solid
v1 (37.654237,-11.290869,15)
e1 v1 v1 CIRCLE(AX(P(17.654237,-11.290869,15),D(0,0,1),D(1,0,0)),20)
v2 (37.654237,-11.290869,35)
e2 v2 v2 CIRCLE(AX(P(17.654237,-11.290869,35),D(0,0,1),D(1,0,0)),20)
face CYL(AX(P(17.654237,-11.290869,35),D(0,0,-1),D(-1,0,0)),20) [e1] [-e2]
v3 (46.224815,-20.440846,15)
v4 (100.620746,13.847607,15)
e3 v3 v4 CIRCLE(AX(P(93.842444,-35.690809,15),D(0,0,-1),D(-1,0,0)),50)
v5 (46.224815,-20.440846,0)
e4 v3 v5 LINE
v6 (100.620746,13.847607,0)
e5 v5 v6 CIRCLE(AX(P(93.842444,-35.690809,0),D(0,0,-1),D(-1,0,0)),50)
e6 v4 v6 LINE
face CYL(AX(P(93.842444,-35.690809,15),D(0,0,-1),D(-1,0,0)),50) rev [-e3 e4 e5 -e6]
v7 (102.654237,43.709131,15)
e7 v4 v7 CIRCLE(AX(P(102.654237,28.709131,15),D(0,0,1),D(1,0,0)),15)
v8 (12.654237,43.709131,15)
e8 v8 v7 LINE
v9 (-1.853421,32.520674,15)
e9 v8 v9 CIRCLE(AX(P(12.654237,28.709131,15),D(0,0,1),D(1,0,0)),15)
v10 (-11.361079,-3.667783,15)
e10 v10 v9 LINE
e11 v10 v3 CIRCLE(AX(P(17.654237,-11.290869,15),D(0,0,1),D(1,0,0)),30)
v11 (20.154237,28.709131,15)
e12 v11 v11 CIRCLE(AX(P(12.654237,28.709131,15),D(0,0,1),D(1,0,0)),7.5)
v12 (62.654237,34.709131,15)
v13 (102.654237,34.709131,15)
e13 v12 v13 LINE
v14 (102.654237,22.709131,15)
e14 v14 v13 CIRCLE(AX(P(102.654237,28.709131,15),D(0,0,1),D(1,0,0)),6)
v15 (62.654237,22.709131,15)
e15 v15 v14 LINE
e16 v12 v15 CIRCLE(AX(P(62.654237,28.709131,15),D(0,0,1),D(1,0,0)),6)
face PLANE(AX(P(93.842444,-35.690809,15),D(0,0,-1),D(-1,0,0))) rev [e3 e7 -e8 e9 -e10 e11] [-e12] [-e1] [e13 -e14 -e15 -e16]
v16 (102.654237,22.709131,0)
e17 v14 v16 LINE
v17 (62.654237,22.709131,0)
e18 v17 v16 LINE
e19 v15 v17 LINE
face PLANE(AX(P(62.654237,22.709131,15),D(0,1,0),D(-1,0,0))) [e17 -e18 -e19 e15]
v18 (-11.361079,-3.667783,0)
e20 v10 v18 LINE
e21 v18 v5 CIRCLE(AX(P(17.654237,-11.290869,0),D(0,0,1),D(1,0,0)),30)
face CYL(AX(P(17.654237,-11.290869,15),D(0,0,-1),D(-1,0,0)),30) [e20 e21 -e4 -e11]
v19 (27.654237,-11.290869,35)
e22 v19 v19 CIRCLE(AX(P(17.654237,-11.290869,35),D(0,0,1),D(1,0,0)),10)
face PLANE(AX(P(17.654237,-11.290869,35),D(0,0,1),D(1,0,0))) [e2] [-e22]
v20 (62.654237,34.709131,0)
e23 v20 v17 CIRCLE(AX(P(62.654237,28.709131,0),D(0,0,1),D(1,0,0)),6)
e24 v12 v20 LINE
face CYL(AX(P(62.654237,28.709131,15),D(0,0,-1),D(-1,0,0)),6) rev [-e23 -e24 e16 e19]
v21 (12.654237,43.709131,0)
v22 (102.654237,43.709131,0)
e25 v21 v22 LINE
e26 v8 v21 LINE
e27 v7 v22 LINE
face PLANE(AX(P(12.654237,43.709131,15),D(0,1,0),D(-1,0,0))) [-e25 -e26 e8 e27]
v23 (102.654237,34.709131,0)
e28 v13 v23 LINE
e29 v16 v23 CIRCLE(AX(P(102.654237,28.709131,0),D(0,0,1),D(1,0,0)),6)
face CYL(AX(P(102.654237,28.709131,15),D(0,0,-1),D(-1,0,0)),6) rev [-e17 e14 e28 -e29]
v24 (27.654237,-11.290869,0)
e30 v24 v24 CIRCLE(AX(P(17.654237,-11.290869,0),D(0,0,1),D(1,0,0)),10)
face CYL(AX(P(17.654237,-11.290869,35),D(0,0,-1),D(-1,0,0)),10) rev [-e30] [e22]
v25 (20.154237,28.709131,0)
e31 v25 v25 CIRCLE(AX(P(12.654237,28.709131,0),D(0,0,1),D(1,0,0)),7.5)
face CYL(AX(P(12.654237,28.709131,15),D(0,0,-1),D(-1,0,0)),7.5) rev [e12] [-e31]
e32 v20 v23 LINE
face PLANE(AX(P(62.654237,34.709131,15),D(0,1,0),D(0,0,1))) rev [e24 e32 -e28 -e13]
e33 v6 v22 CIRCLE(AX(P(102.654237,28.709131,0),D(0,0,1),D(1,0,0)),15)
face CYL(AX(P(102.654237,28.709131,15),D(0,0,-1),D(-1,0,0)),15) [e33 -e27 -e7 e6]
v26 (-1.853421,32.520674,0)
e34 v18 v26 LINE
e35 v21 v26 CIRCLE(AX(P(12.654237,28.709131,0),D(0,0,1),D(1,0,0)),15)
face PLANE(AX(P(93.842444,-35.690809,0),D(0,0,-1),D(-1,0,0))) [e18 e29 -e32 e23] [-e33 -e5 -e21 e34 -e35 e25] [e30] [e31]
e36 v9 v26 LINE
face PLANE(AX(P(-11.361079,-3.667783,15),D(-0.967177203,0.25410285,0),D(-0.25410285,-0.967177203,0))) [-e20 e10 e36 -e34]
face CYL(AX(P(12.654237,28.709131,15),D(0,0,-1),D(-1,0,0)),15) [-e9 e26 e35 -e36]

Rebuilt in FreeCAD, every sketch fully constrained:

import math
import FreeCAD as App
import Part
import Sketcher
from FreeCAD import Vector
Q = App.Units.Quantity

doc = App.newDocument("Part")
body = doc.addObject("PartDesign::Body", "Body")

# Sketch on XY plane
sketch1 = body.newObject("Sketcher::SketchObject", "Sketch")
sketch1.AttachmentSupport = (doc.getObject("XY_Plane"), [""])
sketch1.MapMode = "FlatFace"
sketch1.addGeometry(Part.LineSegment(Vector(-2, 33, 0), Vector(-11, -4, 0)), False)
sketch1.addGeometry(Part.ArcOfCircle(Part.Circle(Vector(18, -11, 0), Vector(0, 0, 1), 30), math.radians(165), math.radians(342)), False)
sketch1.addGeometry(Part.ArcOfCircle(Part.Circle(Vector(94, -36, 0), Vector(0, 0, 1), 50), math.radians(82), math.radians(162)), False)
sketch1.addGeometry(Part.ArcOfCircle(Part.Circle(Vector(103, 29, 0), Vector(0, 0, 1), 15), math.radians(-98), math.radians(90)), False)
sketch1.addGeometry(Part.LineSegment(Vector(103, 44, 0), Vector(13, 44, 0)), False)
sketch1.addGeometry(Part.ArcOfCircle(Part.Circle(Vector(13, 29, 0), Vector(0, 0, 1), 15), math.radians(90), math.radians(165)), False)
sketch1.addGeometry(Part.Circle(Vector(18, -11, 0), Vector(0, 0, 1), 20), False)
sketch1.addGeometry(Part.LineSegment(Vector(63, 35, 0), Vector(103, 35, 0)), False)
sketch1.addGeometry(Part.ArcOfCircle(Part.Circle(Vector(103, 29, 0), Vector(0, 0, 1), 6), math.radians(-90), math.radians(90)), False)
sketch1.addGeometry(Part.LineSegment(Vector(103, 23, 0), Vector(63, 23, 0)), False)
sketch1.addGeometry(Part.ArcOfCircle(Part.Circle(Vector(63, 29, 0), Vector(0, 0, 1), 6), math.radians(90), math.radians(270)), False)
sketch1.addGeometry(Part.Circle(Vector(13, 29, 0), Vector(0, 0, 1), 8), False)
sketch1.addConstraint(Sketcher.Constraint("Tangent", 0, 2, 1, 1))
sketch1.addConstraint(Sketcher.Constraint("Tangent", 1, 2, 2, 2))
sketch1.addConstraint(Sketcher.Constraint("Tangent", 2, 1, 3, 1))
sketch1.addConstraint(Sketcher.Constraint("Tangent", 3, 2, 4, 1))
sketch1.addConstraint(Sketcher.Constraint("Tangent", 4, 2, 5, 1))
sketch1.addConstraint(Sketcher.Constraint("Tangent", 5, 2, 0, 1))
sketch1.addConstraint(Sketcher.Constraint("Tangent", 7, 2, 8, 2))
sketch1.addConstraint(Sketcher.Constraint("Tangent", 8, 1, 9, 1))
sketch1.addConstraint(Sketcher.Constraint("Tangent", 9, 2, 10, 2))
sketch1.addConstraint(Sketcher.Constraint("Tangent", 10, 1, 7, 1))
sketch1.addConstraint(Sketcher.Constraint("Horizontal", 4))
sketch1.addConstraint(Sketcher.Constraint("Horizontal", 7))
sketch1.addConstraint(Sketcher.Constraint("Horizontal", 9))
sketch1.addConstraint(Sketcher.Constraint("Coincident", 6, 3, 1, 3))
sketch1.addConstraint(Sketcher.Constraint("Coincident", 8, 3, 3, 3))
sketch1.addConstraint(Sketcher.Constraint("Coincident", 11, 3, 5, 3))
sketch1.addConstraint(Sketcher.Constraint("Equal", 3, 5))
sketch1.addConstraint(Sketcher.Constraint("Diameter", 6, Q("40 mm")))
sketch1.addConstraint(Sketcher.Constraint("Diameter", 11, Q("15 mm")))
sketch1.addConstraint(Sketcher.Constraint("Radius", 1, Q("30 mm")))
sketch1.addConstraint(Sketcher.Constraint("Radius", 2, Q("50 mm")))
sketch1.addConstraint(Sketcher.Constraint("Radius", 3, Q("15 mm")))
sketch1.addConstraint(Sketcher.Constraint("Radius", 8, Q("6 mm")))
sketch1.addConstraint(Sketcher.Constraint("DistanceX", 4, 2, 4, 1, Q("90 mm")))
sketch1.addConstraint(Sketcher.Constraint("DistanceX", 7, 1, 7, 2, Q("40 mm")))
sketch1.addConstraint(Sketcher.Constraint("DistanceX", 1, 3, 3, 3, Q("85 mm")))
sketch1.addConstraint(Sketcher.Constraint("DistanceY", 1, 3, 3, 3, Q("40 mm")))
sketch1.addConstraint(Sketcher.Constraint("DistanceY", 1, 3, -1, 1, Q("11.290869 mm")))
sketch1.addConstraint(Sketcher.Constraint("DistanceX", 0, 2, -1, 1, Q("11.361079 mm")))
pad1 = body.newObject("PartDesign::Pad", "Pad")
pad1.Profile = sketch1
pad1.Length = 15

# Sketch on XY plane
sketch2 = body.newObject("Sketcher::SketchObject", "Sketch001")
sketch2.AttachmentSupport = (doc.getObject("XY_Plane"), [""])
sketch2.MapMode = "FlatFace"
sketch2.addGeometry(Part.Circle(Vector(18, -11, 0), Vector(0, 0, 1), 20), False)
sketch2.addGeometry(Part.Circle(Vector(18, -11, 0), Vector(0, 0, 1), 10), False)
sketch2.addConstraint(Sketcher.Constraint("Coincident", 1, 3, 0, 3))
sketch2.addConstraint(Sketcher.Constraint("Diameter", 0, Q("40 mm")))
sketch2.addConstraint(Sketcher.Constraint("Diameter", 1, Q("20 mm")))
sketch2.addConstraint(Sketcher.Constraint("DistanceY", 0, 3, -1, 1, Q("11.290869 mm")))
sketch2.addConstraint(Sketcher.Constraint("DistanceX", -1, 1, 0, 3, Q("17.654237 mm")))
pad2 = body.newObject("PartDesign::Pad", "Pad001")
pad2.Profile = sketch2
pad2.Length = 35

doc.recompute()
